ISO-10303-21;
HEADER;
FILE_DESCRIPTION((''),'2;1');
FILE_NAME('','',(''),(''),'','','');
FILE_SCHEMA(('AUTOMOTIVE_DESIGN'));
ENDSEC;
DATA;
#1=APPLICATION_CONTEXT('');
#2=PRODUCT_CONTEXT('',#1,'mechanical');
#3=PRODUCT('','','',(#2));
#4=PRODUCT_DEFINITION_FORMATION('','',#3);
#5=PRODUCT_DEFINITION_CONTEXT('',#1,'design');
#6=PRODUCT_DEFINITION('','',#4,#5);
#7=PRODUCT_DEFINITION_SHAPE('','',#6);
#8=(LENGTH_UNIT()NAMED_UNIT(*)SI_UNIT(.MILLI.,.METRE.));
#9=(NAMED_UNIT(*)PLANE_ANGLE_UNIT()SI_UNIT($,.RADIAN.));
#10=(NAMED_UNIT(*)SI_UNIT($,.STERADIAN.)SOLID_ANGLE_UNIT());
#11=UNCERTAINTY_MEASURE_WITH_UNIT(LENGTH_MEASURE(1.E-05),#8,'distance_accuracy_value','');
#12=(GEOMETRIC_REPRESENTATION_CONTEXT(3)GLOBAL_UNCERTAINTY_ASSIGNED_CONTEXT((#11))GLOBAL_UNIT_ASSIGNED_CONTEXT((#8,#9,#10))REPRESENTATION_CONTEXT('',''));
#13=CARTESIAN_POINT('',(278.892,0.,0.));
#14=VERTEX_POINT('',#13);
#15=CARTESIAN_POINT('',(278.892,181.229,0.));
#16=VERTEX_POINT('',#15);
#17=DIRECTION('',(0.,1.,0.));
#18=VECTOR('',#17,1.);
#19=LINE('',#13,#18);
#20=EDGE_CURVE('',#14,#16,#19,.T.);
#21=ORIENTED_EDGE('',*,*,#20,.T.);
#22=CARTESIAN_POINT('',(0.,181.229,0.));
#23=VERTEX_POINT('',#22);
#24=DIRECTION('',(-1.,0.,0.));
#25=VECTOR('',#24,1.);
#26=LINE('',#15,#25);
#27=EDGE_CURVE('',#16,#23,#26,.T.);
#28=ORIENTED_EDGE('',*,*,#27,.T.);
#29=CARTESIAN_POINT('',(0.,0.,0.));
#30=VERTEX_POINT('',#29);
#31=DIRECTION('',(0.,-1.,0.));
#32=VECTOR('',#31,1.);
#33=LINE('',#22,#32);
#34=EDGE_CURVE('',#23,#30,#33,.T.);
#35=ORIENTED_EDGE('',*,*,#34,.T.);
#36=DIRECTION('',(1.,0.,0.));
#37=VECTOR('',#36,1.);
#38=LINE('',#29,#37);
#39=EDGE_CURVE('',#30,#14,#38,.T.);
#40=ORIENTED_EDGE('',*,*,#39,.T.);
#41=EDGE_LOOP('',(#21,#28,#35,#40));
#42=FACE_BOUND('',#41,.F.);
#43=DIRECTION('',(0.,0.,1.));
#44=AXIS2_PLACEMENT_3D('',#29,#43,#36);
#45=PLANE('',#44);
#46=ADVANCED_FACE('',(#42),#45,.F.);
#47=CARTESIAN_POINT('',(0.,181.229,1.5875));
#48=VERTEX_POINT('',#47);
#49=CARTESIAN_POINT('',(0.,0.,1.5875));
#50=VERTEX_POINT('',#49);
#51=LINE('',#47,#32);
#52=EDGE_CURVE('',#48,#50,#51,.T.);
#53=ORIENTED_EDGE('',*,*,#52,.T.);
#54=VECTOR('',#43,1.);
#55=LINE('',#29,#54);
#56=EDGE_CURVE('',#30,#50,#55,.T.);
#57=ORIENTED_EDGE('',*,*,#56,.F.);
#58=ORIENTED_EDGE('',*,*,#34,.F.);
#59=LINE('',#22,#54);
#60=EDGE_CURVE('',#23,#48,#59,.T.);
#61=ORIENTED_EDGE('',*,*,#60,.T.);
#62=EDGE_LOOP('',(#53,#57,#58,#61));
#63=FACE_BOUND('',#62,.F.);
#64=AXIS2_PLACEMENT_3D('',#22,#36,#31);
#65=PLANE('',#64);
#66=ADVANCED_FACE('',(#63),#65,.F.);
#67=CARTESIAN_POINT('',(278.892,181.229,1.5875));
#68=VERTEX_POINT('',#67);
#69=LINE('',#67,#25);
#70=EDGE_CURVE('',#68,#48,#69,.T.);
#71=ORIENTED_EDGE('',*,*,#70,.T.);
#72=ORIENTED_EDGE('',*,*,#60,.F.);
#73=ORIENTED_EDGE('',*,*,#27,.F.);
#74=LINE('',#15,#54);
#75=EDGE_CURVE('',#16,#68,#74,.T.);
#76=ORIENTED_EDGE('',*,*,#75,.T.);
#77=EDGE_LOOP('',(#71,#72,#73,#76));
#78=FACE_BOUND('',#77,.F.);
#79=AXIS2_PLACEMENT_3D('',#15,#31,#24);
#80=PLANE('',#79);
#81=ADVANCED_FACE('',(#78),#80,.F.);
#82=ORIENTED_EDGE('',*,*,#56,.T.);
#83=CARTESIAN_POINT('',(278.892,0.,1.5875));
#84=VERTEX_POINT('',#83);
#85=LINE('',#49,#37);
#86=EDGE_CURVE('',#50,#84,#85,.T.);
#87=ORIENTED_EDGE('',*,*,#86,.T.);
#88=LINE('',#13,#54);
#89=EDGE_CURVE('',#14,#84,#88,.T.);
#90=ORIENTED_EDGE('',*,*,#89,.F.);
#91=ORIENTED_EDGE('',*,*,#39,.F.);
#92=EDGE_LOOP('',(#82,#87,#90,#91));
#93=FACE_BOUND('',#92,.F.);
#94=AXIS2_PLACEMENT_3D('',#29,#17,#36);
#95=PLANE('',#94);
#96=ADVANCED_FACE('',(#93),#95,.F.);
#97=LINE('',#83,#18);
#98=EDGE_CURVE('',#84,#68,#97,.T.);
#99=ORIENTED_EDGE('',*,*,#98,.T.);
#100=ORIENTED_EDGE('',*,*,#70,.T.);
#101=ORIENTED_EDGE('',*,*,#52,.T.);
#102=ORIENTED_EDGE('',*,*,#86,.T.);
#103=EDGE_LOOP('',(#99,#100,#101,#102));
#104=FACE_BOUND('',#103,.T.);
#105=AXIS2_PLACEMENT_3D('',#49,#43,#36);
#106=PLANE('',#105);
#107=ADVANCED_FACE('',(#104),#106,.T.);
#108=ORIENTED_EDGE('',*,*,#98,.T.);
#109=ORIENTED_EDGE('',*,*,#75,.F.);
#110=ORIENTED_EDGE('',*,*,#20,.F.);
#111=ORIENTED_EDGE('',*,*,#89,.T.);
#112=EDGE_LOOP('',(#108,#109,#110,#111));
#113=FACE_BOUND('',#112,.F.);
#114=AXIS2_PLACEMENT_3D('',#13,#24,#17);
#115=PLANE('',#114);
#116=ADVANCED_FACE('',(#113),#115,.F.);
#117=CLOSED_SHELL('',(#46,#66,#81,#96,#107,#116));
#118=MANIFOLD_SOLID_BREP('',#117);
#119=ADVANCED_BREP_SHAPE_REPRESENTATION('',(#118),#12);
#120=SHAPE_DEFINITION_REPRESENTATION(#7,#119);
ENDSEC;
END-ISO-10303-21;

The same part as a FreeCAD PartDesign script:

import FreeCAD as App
import Part
import Sketcher

V = App.Vector
Q = App.Units.Quantity

doc = App.newDocument("Part")
body = doc.addObject("PartDesign::Body", "Body")

# Sketch on XY plane
sketch1 = body.newObject("Sketcher::SketchObject", "Sketch")
sketch1.AttachmentSupport = (doc.getObject("XY_Plane"), [""])
sketch1.MapMode = "FlatFace"
sketch1.addGeometry([
    Part.LineSegment(V(0, 181, 0), V(0, 0, 0)),
    Part.LineSegment(V(0, 0, 0), V(279, 0, 0)),
    Part.LineSegment(V(279, 0, 0), V(279, 181, 0)),
    Part.LineSegment(V(279, 181, 0), V(0, 181, 0)),
], False)
sketch1.addConstraint([
    Sketcher.Constraint("Coincident", 0, 2, 1, 1),
    Sketcher.Constraint("Coincident", 1, 2, 2, 1),
    Sketcher.Constraint("Coincident", 2, 2, 3, 1),
    Sketcher.Constraint("Coincident", 3, 2, 0, 1),
    Sketcher.Constraint("Vertical", 0),
    Sketcher.Constraint("Horizontal", 1),
    Sketcher.Constraint("Vertical", 2),
    Sketcher.Constraint("Horizontal", 3),
    Sketcher.Constraint("Coincident", 0, 2, -1, 1),
    Sketcher.Constraint("DistanceX", 1, 1, 1, 2, Q("10.98 in")),
    Sketcher.Constraint("DistanceY", 0, 2, 0, 1, Q("7.135 in")),
])
pad1 = body.newObject("PartDesign::Pad", "Pad")
pad1.Profile = sketch1
pad1.Length = Q("0.0625 in")

doc.recompute()
